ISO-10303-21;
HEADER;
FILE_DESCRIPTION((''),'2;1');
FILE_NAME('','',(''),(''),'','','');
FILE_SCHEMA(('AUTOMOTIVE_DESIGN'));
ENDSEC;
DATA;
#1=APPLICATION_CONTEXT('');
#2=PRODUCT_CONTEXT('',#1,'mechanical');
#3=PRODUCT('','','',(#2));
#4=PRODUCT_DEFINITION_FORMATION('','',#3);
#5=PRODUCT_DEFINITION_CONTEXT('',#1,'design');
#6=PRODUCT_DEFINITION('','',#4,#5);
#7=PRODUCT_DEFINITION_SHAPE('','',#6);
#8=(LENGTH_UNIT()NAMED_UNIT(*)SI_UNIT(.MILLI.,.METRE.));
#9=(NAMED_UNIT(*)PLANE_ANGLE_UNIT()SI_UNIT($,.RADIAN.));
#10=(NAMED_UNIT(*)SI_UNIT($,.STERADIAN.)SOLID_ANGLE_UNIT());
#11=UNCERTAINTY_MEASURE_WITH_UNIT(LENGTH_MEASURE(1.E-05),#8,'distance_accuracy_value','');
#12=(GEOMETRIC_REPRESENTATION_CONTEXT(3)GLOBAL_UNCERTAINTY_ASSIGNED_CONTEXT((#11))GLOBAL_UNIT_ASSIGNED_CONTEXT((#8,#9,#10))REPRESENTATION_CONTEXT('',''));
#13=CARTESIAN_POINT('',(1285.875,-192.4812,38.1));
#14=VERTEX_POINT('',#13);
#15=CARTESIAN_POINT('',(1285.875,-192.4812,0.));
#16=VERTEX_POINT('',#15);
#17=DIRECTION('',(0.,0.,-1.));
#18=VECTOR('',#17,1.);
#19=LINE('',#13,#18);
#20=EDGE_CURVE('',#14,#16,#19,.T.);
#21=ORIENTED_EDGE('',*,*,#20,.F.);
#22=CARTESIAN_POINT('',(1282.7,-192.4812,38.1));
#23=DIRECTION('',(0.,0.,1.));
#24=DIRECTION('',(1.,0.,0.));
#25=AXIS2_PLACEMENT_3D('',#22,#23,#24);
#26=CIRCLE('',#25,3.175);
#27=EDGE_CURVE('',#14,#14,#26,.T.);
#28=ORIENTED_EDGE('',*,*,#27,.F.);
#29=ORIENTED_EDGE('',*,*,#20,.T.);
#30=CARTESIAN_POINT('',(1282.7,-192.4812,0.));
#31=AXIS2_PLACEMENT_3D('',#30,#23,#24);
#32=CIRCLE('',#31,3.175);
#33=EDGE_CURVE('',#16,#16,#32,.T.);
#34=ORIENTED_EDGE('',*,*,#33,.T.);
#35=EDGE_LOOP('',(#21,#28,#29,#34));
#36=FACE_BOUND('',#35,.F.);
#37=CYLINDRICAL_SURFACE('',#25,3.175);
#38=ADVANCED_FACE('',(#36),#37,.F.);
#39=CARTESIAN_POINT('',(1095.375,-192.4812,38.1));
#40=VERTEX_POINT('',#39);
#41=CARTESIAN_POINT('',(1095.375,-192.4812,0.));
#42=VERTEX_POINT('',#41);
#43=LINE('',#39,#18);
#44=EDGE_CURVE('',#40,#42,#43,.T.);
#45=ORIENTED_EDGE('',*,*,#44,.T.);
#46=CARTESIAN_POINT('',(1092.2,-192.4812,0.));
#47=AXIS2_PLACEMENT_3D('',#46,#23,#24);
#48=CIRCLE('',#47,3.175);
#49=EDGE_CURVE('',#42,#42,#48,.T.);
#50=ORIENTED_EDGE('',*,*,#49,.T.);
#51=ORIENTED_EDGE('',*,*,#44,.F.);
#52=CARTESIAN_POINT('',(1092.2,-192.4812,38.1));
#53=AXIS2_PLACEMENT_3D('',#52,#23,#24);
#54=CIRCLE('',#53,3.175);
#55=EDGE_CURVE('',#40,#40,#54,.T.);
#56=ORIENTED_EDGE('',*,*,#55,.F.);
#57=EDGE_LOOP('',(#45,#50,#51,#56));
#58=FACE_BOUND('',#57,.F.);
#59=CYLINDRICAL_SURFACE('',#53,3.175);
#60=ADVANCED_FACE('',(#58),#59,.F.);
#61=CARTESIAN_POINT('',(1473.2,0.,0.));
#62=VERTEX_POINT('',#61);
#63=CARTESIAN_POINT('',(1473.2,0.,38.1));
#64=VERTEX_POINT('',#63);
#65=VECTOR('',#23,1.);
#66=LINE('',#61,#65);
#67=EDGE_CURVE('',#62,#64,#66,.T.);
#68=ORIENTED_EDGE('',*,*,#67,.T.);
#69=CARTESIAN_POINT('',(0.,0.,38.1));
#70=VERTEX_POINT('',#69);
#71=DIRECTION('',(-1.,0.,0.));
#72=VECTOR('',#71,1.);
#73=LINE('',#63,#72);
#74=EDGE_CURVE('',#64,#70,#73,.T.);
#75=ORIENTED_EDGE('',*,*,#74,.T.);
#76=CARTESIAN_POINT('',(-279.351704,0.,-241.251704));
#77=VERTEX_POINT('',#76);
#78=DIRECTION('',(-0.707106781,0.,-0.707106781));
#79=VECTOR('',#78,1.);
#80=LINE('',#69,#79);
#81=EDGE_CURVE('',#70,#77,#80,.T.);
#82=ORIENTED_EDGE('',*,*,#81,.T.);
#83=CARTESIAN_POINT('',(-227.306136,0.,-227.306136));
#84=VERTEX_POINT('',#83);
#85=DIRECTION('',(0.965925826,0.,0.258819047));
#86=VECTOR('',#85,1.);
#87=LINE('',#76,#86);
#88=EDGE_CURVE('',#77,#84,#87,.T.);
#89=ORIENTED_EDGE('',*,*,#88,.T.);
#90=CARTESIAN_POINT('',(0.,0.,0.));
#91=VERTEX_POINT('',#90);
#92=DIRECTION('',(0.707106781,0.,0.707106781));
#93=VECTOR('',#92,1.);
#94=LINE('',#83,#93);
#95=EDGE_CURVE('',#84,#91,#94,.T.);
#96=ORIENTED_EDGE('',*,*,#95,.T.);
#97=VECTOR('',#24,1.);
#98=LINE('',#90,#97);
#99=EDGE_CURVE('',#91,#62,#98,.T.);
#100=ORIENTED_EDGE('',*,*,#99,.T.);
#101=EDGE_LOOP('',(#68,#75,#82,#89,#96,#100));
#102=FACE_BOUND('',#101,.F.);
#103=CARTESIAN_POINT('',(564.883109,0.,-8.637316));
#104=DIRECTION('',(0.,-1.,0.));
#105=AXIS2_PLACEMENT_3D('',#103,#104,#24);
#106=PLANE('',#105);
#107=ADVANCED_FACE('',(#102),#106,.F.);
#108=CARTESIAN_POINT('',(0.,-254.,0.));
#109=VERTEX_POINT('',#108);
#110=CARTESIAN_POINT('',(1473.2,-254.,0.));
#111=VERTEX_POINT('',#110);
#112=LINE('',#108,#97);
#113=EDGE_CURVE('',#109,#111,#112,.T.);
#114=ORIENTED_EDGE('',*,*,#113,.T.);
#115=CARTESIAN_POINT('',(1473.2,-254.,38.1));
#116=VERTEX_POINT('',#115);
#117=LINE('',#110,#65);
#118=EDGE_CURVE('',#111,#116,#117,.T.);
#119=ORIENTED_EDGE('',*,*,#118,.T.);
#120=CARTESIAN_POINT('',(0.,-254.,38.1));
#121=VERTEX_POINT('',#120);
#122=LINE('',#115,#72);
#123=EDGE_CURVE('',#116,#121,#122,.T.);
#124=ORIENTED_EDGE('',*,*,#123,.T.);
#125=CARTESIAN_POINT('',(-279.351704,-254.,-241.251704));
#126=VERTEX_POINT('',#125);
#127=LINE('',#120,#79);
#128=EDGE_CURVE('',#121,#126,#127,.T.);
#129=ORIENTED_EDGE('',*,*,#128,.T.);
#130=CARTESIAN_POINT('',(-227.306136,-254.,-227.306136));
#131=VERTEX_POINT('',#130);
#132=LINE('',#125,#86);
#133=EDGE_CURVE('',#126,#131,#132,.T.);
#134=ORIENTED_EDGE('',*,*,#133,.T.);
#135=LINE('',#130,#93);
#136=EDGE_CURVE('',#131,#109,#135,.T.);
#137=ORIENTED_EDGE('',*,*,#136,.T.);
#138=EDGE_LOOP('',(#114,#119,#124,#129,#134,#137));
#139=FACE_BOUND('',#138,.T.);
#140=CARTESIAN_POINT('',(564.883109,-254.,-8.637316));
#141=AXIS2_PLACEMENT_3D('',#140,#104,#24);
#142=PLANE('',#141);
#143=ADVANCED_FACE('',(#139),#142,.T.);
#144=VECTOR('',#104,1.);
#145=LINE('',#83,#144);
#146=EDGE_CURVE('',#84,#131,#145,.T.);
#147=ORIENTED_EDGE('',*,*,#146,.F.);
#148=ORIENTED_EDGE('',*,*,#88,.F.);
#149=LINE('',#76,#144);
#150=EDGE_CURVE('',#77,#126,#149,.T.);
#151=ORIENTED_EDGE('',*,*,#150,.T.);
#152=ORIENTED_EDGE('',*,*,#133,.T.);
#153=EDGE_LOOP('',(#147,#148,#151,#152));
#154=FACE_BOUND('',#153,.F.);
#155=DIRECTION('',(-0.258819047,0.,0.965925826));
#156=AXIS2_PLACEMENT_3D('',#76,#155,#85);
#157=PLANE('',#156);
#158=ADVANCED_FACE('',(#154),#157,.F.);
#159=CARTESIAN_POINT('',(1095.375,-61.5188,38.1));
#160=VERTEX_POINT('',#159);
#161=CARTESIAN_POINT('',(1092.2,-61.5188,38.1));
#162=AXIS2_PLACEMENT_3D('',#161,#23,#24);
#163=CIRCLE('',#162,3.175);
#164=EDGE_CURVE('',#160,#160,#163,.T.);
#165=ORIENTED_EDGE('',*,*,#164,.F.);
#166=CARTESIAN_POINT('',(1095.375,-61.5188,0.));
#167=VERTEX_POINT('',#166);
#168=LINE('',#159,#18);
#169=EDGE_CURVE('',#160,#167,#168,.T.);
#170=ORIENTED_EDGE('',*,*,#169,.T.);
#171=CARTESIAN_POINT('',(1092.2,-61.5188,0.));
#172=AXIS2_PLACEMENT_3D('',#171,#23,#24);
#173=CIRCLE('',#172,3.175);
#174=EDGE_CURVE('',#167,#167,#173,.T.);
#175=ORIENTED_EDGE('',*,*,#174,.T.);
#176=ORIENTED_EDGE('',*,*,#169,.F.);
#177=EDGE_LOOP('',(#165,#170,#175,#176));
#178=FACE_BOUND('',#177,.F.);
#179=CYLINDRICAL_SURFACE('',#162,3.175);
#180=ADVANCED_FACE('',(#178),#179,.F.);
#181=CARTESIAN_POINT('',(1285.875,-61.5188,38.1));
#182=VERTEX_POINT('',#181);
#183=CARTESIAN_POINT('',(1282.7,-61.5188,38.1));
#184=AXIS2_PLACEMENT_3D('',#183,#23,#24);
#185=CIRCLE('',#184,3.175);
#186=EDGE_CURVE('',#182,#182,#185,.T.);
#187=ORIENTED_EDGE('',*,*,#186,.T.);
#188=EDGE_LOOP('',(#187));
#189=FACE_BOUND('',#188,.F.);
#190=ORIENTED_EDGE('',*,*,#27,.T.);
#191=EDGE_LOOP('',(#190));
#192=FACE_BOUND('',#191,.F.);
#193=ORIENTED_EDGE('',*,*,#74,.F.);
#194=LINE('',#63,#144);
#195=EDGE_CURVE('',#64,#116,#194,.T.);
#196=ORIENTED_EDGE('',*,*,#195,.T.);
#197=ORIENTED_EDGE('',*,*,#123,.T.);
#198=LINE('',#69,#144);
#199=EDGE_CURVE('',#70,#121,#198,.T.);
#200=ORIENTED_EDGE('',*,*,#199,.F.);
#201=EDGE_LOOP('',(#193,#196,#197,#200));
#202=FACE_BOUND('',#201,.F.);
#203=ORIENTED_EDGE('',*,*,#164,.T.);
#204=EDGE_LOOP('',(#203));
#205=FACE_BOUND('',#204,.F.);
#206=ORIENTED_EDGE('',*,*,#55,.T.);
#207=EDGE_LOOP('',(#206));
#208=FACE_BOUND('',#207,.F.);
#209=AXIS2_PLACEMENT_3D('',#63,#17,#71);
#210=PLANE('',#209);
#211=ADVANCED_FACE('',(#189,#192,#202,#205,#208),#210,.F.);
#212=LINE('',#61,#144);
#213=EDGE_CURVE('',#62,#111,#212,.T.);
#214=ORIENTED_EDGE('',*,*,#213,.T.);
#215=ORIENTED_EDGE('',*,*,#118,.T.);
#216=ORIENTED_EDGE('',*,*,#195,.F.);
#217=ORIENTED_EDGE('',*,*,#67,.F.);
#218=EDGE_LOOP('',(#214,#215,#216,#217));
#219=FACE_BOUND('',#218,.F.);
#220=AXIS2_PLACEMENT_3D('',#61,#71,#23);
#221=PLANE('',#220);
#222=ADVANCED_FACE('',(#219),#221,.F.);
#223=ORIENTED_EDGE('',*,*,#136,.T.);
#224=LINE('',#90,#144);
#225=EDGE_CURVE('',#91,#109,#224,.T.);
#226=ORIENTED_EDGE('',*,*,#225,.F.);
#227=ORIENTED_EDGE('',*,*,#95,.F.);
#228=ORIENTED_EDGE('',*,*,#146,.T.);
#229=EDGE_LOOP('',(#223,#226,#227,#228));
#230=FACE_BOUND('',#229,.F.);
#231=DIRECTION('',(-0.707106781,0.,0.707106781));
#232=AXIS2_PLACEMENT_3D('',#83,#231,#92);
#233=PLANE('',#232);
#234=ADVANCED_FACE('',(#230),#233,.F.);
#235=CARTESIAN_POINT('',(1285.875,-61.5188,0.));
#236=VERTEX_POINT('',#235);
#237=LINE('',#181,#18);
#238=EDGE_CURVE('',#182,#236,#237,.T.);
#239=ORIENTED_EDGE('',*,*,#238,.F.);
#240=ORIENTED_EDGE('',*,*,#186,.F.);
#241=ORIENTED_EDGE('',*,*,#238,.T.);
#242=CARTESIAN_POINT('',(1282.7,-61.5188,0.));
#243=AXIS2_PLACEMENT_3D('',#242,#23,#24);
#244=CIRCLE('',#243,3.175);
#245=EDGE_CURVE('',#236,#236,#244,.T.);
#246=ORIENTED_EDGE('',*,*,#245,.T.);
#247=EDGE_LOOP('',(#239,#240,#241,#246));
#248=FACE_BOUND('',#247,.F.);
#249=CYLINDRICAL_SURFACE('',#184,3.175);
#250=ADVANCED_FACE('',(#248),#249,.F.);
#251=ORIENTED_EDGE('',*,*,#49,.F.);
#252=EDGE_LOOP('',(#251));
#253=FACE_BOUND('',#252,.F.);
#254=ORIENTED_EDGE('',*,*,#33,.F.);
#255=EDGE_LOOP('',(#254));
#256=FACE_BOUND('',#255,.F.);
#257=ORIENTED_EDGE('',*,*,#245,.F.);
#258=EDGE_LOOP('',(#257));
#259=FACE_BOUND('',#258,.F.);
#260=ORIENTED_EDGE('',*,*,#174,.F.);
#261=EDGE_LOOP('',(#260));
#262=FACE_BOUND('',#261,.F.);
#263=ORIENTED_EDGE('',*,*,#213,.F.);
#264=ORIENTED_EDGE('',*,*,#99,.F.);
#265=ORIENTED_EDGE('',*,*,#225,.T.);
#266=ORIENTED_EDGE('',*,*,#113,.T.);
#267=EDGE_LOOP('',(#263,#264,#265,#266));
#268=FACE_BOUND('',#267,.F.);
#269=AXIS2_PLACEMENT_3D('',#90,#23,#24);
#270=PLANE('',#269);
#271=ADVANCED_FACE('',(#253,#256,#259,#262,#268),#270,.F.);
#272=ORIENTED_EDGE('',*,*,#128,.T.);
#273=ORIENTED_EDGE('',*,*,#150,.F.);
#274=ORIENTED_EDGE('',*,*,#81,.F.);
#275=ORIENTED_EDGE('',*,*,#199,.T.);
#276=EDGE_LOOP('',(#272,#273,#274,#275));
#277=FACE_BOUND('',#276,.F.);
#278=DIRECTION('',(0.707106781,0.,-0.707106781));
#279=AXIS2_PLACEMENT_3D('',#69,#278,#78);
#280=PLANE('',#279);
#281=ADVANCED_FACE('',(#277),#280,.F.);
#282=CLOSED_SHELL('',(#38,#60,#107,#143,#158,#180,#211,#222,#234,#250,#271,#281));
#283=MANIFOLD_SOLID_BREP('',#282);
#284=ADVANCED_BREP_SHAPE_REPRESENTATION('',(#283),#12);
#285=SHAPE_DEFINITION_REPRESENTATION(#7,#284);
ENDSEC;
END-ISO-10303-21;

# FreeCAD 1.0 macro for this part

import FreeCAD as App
import Part
import Sketcher
Q = App.Units.Quantity


def add_polygon(sketch, points):
    """Adds a closed chain of lines whose ends are joined by coincident constraints."""
    first, n = sketch.GeometryCount, len(points)
    for a, b in zip(points, points[1:] + points[:1]):
        sketch.addGeometry(Part.LineSegment(App.Vector(*a, 0), App.Vector(*b, 0)), False)
    for i in range(n):
        sketch.addConstraint(Sketcher.Constraint("Coincident", first + i, 2, first + (i + 1) % n, 1))

doc = App.newDocument("Part")
params = doc.addObject("Spreadsheet::Sheet", "Params")
for row, (alias, value) in enumerate([
    ("sketch1_width", "58 in"),
    ("sketch1_height", "1.5 in"),
    ("pad1_length", "10 in"),
    ("sketch2_diameter", "0.25 in"),
    ("pocket1_length", "1.5 in"),
], start=1):
    params.set(f"A{row}", alias)
    params.set(f"B{row}", "=" + value)
    params.setAlias(f"B{row}", alias)

body = doc.addObject("PartDesign::Body", "Body")

# Sketch on XZ plane
sketch1 = doc.addObject("Sketcher::SketchObject", "Sketch")
body.addObject(sketch1)
sketch1.AttachmentSupport = (doc.XZ_Plane, [""])
sketch1.MapMode = "FlatFace"
add_polygon(sketch1, [(-227.306136, -227.306136), (0, 0), (1473.2, 0), (1473.2, 38.1), (0, 38.1), (-279.351704, -241.251704)])  # lines 0-5
sketch1.addConstraint(Sketcher.Constraint("Horizontal", 1))
sketch1.addConstraint(Sketcher.Constraint("Vertical", 2))
sketch1.addConstraint(Sketcher.Constraint("Horizontal", 3))
sketch1.addConstraint(Sketcher.Constraint("Coincident", 0, 2, -1, 1))
sketch1.addConstraint(Sketcher.Constraint("PointOnObject", 3, 2, -2))
sketch1.addConstraint(Sketcher.Constraint("Parallel", 0, 4))
sketch1.addConstraint(Sketcher.Constraint("DistanceX", 1, 1, 1, 2, Q("58 in")))
sketch1.addConstraint(Sketcher.Constraint("DistanceY", 2, 1, 2, 2, Q("1.5 in")))
sketch1.addConstraint(Sketcher.Constraint("Angle", 0, Q("45 deg")))
sketch1.addConstraint(Sketcher.Constraint("Angle", 5, Q("15 deg")))
sketch1.addConstraint(Sketcher.Constraint("Distance", 0, Q("321.45942 mm")))
sketch1.setExpression("Constraints[12]", "Params.sketch1_width")
sketch1.setExpression("Constraints[13]", "Params.sketch1_height")
pad1 = doc.addObject("PartDesign::Pad", "Pad")
body.addObject(pad1)
pad1.Profile = sketch1
pad1.setExpression("Length", "Params.pad1_length")

# Sketch on XY plane
sketch2 = doc.addObject("Sketcher::SketchObject", "Sketch001")
body.addObject(sketch2)
sketch2.AttachmentSupport = (doc.XY_Plane, [""])
sketch2.MapMode = "FlatFace"
sketch2.AttachmentOffset = App.Placement(App.Vector(0, 0, 1.5 * 25.4), App.Rotation())
sketch2.addGeometry(Part.Circle(App.Vector(1092.2, -61.5188, 0), App.Vector(0, 0, 1), 3.175), False)
sketch2.addGeometry(Part.Circle(App.Vector(1092.2, -192.4812, 0), App.Vector(0, 0, 1), 3.175), False)
sketch2.addGeometry(Part.Circle(App.Vector(1282.7, -61.5188, 0), App.Vector(0, 0, 1), 3.175), False)
sketch2.addGeometry(Part.Circle(App.Vector(1282.7, -192.4812, 0), App.Vector(0, 0, 1), 3.175), False)
sketch2.addConstraint(Sketcher.Constraint("Equal", 0, 1))
sketch2.addConstraint(Sketcher.Constraint("Equal", 1, 2))
sketch2.addConstraint(Sketcher.Constraint("Equal", 2, 3))
sketch2.addConstraint(Sketcher.Constraint("Horizontal", 0, 3, 2, 3))
sketch2.addConstraint(Sketcher.Constraint("Horizontal", 1, 3, 3, 3))
sketch2.addConstraint(Sketcher.Constraint("Vertical", 0, 3, 1, 3))
sketch2.addConstraint(Sketcher.Constraint("Vertical", 2, 3, 3, 3))
sketch2.addConstraint(Sketcher.Constraint("Diameter", 0, Q("0.25 in")))
sketch2.addConstraint(Sketcher.Constraint("DistanceX", -1, 1, 0, 3, Q("43 in")))
sketch2.addConstraint(Sketcher.Constraint("DistanceX", -1, 1, 2, 3, Q("50.5 in")))
sketch2.addConstraint(Sketcher.Constraint("DistanceY", 0, 3, -1, 1, Q("2.422 in")))
sketch2.addConstraint(Sketcher.Constraint("DistanceY", 1, 3, -1, 1, Q("7.578 in")))
sketch2.setExpression("Constraints[7]", "Params.sketch2_diameter")
pocket1 = doc.addObject("PartDesign::Pocket", "Pocket")
body.addObject(pocket1)
pocket1.Profile = sketch2
pocket1.setExpression("Length", "Params.pocket1_length")

doc.recompute()
